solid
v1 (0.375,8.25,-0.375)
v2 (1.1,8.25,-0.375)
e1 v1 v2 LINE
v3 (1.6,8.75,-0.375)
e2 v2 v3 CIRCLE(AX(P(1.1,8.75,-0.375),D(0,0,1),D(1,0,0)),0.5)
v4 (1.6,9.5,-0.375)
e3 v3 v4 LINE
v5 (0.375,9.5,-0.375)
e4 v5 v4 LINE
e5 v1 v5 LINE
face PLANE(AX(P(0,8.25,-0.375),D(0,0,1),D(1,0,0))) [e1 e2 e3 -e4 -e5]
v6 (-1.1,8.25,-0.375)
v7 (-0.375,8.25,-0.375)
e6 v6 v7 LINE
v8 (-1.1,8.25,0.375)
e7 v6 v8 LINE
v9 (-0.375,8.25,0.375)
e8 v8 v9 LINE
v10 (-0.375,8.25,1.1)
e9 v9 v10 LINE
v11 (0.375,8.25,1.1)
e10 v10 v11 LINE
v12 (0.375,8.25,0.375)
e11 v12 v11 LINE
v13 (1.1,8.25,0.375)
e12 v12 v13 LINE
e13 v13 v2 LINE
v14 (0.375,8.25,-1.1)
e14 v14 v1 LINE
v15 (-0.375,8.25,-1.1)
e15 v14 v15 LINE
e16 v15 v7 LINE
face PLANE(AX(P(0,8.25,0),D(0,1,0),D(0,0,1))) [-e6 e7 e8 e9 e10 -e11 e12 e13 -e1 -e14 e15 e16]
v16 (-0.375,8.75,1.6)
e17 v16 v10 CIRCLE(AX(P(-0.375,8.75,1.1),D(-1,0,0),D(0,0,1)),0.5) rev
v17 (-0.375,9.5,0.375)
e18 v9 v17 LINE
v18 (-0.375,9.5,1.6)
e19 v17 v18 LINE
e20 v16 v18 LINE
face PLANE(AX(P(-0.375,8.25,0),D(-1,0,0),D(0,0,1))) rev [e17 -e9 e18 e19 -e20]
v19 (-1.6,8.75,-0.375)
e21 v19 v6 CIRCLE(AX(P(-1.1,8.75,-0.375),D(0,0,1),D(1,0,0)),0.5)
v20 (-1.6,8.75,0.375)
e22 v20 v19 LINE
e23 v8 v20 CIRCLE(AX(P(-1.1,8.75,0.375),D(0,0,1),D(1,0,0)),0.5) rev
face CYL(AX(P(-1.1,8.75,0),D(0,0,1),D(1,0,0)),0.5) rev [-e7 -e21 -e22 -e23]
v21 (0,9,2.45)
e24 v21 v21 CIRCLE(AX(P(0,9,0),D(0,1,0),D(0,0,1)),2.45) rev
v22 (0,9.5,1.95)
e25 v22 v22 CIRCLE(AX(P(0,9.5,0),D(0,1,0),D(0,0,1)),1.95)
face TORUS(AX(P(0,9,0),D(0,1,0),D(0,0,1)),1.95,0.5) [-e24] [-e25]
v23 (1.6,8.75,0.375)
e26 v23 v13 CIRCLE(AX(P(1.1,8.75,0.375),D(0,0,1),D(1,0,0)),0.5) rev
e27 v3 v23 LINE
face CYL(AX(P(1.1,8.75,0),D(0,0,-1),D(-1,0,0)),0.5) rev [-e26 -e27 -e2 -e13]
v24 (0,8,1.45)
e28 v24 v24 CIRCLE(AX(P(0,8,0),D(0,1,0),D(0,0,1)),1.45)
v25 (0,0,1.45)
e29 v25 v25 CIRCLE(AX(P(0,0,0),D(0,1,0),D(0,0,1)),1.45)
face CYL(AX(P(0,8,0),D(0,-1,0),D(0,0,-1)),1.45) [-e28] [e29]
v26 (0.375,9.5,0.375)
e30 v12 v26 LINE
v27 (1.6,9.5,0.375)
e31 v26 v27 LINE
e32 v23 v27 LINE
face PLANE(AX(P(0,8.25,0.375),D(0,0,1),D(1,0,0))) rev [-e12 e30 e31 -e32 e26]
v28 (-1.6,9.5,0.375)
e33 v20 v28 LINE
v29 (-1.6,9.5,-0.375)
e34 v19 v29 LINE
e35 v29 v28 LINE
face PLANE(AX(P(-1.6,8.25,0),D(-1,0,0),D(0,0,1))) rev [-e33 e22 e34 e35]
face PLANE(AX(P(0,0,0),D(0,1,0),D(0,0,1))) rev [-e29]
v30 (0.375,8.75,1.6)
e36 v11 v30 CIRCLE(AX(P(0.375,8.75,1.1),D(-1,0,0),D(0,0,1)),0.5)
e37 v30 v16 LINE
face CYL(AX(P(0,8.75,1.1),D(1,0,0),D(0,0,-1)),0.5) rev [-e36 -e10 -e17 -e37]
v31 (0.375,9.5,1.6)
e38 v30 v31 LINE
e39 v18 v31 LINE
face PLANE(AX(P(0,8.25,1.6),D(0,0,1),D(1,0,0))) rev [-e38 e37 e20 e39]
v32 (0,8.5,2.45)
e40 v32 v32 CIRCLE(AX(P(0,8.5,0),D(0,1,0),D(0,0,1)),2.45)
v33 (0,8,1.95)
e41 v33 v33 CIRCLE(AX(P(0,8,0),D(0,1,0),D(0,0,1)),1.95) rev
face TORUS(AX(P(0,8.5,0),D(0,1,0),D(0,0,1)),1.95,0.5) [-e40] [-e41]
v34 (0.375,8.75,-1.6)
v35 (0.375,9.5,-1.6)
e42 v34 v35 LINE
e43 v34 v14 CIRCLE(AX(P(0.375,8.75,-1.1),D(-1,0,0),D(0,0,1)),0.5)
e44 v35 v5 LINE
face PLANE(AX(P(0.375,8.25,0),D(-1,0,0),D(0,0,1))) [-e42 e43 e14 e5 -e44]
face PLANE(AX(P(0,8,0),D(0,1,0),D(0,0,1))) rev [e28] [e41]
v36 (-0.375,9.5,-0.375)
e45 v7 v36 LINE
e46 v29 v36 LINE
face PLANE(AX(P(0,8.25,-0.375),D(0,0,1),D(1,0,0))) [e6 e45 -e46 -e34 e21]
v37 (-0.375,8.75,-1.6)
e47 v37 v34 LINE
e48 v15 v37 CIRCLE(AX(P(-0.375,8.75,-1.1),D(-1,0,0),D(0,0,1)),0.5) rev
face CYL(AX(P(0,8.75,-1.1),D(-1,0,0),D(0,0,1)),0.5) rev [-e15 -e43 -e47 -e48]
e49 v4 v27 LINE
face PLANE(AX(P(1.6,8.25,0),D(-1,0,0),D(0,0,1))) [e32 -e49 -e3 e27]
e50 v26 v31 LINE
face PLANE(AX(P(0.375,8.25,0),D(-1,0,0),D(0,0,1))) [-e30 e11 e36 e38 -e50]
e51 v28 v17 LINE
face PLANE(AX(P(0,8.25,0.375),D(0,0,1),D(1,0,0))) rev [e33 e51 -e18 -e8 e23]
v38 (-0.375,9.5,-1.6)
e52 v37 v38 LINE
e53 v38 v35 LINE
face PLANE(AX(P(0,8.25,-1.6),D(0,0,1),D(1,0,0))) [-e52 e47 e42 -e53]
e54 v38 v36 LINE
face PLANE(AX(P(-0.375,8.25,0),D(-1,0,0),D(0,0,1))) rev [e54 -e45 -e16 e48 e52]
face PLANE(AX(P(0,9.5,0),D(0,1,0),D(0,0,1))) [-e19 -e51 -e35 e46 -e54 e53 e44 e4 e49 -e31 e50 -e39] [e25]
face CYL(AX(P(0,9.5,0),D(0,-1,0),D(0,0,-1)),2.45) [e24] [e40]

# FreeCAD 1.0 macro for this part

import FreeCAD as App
import Part
import Sketcher

V = App.Vector


def edges_at(feature, points):
    """Names of the edges that pass closest to the given points."""
    edges = feature.Shape.Edges
    near = lambda p: min(range(len(edges)), key=lambda i: edges[i].distToShape(Part.Vertex(*p))[0])
    return sorted({f"Edge{near(p) + 1}" for p in points})


def add_polygon(sketch, points):
    """Adds a closed chain of lines whose ends are joined by coincident constraints."""
    first, n = sketch.GeometryCount, len(points)
    for a, b in zip(points, points[1:] + points[:1]):
        sketch.addGeometry(Part.LineSegment(App.Vector(*a, 0), App.Vector(*b, 0)), False)
    for i in range(n):
        sketch.addConstraint(Sketcher.Constraint("Coincident", first + i, 2, first + (i + 1) % n, 1))

doc = App.newDocument("Part")
params = doc.addObject("Spreadsheet::Sheet", "Params")
for row, (alias, value) in enumerate([
    ("sketch1_diameter", "2.9 mm"),
    ("pad1_length", "8 mm"),
    ("sketch2_diameter", "4.9 mm"),
    ("pad2_length", "1.5 mm"),
    ("fillet_radius", "0.5 mm"),
    ("sketch3_width", "0.75 mm"),
    ("pocket1_length", "1.25 mm"),
    ("fillet2_radius", "0.5 mm"),
], start=1):
    params.set(f"A{row}", alias)
    params.set(f"B{row}", "=" + value)
    params.setAlias(f"B{row}", alias)

body = doc.addObject("PartDesign::Body", "Body")

sketch1 = body.newObject("Sketcher::SketchObject", "Sketch")
sketch1.AttachmentSupport = (doc.getObject("XZ_Plane"), [""])
sketch1.MapMode = "FlatFace"
sketch1.addGeometry(Part.Circle(V(0, 0, 0), V(0, 0, 1), 1.4), False)
sketch1.addConstraint([
    Sketcher.Constraint("Coincident", 0, 3, -1, 1),
    Sketcher.Constraint("Diameter", 0, 2.9),
])
sketch1.setExpression("Constraints[1]", "Params.sketch1_diameter")
pad1 = body.newObject("PartDesign::Pad", "Pad")
pad1.Profile = sketch1
pad1.setExpression("Length", "Params.pad1_length")
pad1.Reversed = True

sketch2 = body.newObject("Sketcher::SketchObject", "Sketch001")
sketch2.AttachmentSupport = (doc.getObject("XZ_Plane"), [""])
sketch2.MapMode = "FlatFace"
sketch2.AttachmentOffset = App.Placement(V(0, 0, -8), App.Rotation())
sketch2.addGeometry(Part.Circle(V(0, 0, 0), V(0, 0, 1), 2.5), False)
sketch2.addConstraint([
    Sketcher.Constraint("Coincident", 0, 3, -1, 1),
    Sketcher.Constraint("Diameter", 0, 4.9),
])
sketch2.setExpression("Constraints[1]", "Params.sketch2_diameter")
pad2 = body.newObject("PartDesign::Pad", "Pad001")
pad2.Profile = sketch2
pad2.setExpression("Length", "Params.pad2_length")
pad2.Reversed = True
doc.recompute()

fillet = body.newObject("PartDesign::Fillet", "Fillet")
fillet.Base = (pad2, edges_at(pad2, [(0, 8, -2.45), (0, 9.5, -2.45)]))
fillet.setExpression("Radius", "Params.fillet_radius")

sketch3 = body.newObject("Sketcher::SketchObject", "Sketch002")
sketch3.AttachmentSupport = (doc.getObject("XZ_Plane"), [""])
sketch3.MapMode = "FlatFace"
sketch3.AttachmentOffset = App.Placement(V(0, 0, -9.5), App.Rotation())
add_polygon(sketch3, [(-0.4, -1.6), (-0.4, -0.4), (-1.6, -0.4), (-1.6, 0.4), (-0.4, 0.4), (-0.4, 1.6), (0.4, 1.6), (0.4, 0.4), (1.6, 0.4), (1.6, -0.4), (0.4, -0.4), (0.4, -1.6)])
sketch3.addConstraint([
    Sketcher.Constraint("Vertical", 0),
    Sketcher.Constraint("Horizontal", 1),
    Sketcher.Constraint("Vertical", 2),
    Sketcher.Constraint("Horizontal", 3),
    Sketcher.Constraint("Vertical", 4),
    Sketcher.Constraint("Horizontal", 5),
    Sketcher.Constraint("Vertical", 6),
    Sketcher.Constraint("Horizontal", 7),
    Sketcher.Constraint("Vertical", 8),
    Sketcher.Constraint("Horizontal", 9),
    Sketcher.Constraint("Vertical", 10),
    Sketcher.Constraint("Horizontal", 11),
    Sketcher.Constraint("Symmetric", 0, 2, 6, 2, -1, 1),
    Sketcher.Constraint("Symmetric", 2, 2, 8, 2, -1, 1),
    Sketcher.Constraint("Symmetric", 4, 2, 10, 2, -1, 1),
    Sketcher.Constraint("Symmetric", 3, 2, 6, 2, -2),
    Sketcher.Constraint("Equal", 9, 0),
    Sketcher.Constraint("Equal", 11, 2),
    Sketcher.Constraint("DistanceX", 5, 1, 5, 2, 0.75),
    Sketcher.Constraint("DistanceX", 1, 2, -1, 1, 1.6),
])
sketch3.setExpression("Constraints[30]", "Params.sketch3_width")
pocket1 = body.newObject("PartDesign::Pocket", "Pocket")
pocket1.Profile = sketch3
pocket1.setExpression("Length", "Params.pocket1_length")
pocket1.Reversed = True
doc.recompute()

fillet2 = body.newObject("PartDesign::Fillet", "Fillet001")
fillet2.Base = (pocket1, edges_at(pocket1, [
    (0, 8.25, 1.6),
    (-1.6, 8.25, 0),
    (0, 8.25, -1.6),
    (1.6, 8.25, 0),
]))
fillet2.setExpression("Radius", "Params.fillet2_radius")

doc.recompute()
